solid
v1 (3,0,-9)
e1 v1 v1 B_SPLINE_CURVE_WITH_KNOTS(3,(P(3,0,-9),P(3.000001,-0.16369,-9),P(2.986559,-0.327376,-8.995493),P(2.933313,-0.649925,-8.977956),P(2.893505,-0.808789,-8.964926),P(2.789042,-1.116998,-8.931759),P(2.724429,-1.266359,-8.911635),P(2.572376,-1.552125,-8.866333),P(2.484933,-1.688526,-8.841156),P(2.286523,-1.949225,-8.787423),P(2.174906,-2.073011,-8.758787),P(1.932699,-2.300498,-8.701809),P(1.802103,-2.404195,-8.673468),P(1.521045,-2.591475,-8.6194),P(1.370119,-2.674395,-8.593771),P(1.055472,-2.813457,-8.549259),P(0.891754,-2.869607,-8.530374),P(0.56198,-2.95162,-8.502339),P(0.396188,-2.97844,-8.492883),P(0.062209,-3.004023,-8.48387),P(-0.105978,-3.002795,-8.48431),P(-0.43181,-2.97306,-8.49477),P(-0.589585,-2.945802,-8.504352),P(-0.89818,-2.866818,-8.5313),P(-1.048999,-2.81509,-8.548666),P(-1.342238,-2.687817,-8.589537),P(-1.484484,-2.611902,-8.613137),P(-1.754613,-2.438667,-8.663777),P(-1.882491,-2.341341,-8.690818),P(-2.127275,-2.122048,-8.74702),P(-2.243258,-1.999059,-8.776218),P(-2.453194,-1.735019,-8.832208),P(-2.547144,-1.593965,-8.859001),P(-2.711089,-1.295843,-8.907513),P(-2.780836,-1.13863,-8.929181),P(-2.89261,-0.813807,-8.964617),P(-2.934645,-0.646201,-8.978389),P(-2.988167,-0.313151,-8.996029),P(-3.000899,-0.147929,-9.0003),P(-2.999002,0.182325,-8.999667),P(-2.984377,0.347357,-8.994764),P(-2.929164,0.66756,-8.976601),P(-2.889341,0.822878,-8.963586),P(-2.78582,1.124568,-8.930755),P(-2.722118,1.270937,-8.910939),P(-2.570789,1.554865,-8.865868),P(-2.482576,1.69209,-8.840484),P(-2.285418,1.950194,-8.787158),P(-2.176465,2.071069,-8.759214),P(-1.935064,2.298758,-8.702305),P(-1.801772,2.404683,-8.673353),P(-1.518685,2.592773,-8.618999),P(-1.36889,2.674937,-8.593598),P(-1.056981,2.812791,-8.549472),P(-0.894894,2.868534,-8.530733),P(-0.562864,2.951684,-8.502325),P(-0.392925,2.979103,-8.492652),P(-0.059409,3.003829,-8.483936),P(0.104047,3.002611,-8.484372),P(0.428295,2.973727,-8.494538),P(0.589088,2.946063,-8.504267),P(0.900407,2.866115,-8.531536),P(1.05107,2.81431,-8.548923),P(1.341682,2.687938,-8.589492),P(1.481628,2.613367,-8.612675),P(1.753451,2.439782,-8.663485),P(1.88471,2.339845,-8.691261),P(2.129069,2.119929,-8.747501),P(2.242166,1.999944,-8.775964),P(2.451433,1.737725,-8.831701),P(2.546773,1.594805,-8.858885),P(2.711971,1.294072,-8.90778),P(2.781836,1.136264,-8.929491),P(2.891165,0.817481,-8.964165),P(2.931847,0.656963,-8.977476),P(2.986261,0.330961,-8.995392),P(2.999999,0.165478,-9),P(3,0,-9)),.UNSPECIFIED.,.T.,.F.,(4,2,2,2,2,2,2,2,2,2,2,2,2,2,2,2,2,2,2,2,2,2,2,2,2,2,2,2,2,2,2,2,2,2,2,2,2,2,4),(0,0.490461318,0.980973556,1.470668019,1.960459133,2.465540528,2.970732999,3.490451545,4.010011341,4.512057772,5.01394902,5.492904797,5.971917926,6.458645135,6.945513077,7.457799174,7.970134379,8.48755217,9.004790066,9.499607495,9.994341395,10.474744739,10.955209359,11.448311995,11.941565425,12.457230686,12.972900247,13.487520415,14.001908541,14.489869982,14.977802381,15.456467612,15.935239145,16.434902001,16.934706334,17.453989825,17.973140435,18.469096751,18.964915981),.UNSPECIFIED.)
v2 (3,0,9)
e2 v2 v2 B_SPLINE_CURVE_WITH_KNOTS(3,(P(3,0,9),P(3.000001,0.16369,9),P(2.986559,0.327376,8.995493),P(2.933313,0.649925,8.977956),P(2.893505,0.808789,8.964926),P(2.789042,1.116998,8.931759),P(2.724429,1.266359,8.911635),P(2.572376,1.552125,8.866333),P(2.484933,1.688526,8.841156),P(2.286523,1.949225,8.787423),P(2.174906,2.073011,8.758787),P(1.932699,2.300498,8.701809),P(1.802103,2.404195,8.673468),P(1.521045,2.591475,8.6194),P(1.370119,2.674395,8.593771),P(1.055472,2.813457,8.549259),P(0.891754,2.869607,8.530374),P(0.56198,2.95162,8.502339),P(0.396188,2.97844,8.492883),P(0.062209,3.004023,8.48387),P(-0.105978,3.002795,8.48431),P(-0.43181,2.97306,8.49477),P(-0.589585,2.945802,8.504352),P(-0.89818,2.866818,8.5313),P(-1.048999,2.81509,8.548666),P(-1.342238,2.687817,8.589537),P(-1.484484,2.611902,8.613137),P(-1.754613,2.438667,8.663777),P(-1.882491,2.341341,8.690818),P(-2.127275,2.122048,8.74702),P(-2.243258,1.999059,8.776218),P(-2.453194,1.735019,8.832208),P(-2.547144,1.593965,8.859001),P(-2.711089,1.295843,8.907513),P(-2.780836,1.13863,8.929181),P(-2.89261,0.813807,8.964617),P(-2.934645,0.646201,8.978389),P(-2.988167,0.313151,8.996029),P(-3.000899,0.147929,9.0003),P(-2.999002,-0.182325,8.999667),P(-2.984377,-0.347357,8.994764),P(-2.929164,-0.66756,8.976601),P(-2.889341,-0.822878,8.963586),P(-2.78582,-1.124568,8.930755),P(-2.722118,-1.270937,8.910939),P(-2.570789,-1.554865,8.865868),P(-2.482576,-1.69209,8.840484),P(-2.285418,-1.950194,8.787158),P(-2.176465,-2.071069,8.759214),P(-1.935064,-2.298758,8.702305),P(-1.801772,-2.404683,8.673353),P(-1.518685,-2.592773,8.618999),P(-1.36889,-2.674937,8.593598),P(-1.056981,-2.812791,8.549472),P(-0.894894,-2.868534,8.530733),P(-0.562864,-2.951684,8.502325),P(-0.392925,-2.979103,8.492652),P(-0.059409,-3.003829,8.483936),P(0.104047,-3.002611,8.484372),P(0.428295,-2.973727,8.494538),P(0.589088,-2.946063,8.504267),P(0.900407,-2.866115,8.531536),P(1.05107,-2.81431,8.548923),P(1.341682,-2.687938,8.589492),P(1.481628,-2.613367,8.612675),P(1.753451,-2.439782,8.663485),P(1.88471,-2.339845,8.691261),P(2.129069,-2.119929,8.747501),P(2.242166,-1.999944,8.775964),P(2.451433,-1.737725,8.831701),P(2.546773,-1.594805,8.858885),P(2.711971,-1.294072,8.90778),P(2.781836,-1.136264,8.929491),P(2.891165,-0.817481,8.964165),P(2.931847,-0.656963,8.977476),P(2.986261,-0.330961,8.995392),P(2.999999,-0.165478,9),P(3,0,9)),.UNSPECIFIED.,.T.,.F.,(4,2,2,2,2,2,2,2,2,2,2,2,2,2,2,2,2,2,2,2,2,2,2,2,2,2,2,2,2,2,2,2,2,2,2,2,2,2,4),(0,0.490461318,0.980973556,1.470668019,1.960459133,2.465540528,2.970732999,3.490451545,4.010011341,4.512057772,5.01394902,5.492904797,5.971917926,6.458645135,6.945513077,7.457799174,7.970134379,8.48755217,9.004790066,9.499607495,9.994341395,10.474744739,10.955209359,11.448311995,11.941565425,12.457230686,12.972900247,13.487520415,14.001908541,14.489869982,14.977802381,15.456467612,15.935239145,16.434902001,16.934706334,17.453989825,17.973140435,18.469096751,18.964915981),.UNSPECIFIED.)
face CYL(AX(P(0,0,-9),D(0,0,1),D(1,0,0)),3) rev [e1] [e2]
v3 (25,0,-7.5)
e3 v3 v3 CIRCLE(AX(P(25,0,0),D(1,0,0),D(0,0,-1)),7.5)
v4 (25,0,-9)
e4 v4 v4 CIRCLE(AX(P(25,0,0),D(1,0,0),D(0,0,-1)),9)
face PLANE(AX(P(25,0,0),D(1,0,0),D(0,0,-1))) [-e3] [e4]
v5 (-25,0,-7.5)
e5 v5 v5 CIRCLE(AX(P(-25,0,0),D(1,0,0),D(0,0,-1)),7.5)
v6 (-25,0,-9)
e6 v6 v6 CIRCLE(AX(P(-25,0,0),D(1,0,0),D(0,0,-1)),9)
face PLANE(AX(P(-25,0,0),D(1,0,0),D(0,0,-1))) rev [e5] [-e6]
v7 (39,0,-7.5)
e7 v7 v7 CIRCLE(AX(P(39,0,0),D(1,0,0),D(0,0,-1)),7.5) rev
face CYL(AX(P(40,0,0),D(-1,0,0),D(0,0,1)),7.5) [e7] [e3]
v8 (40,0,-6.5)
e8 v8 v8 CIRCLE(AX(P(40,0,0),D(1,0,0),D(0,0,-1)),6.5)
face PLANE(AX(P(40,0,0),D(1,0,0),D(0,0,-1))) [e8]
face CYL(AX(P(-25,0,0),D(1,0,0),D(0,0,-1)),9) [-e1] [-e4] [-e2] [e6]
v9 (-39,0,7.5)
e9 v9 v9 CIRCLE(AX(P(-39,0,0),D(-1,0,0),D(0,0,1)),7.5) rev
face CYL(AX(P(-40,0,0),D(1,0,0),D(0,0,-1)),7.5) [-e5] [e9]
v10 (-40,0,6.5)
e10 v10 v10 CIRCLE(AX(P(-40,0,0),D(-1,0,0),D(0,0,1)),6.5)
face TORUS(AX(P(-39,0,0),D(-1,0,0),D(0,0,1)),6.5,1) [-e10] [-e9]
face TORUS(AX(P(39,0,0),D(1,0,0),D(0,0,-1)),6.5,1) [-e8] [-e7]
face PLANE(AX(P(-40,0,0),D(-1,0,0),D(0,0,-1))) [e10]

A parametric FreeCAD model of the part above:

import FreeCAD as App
import Part
import Sketcher
from FreeCAD import Vector


def edges_at(feature, points):
    """Names of the edges that pass closest to the given points."""
    edges = feature.Shape.Edges
    near = lambda p: min(range(len(edges)), key=lambda i: edges[i].distToShape(Part.Vertex(*p))[0])
    return sorted({f"Edge{near(p) + 1}" for p in points})

doc = App.newDocument("Part")
body = doc.addObject("PartDesign::Body", "Body")

# Sketch on YZ plane
sketch1 = doc.addObject("Sketcher::SketchObject", "Sketch")
body.addObject(sketch1)
sketch1.AttachmentSupport = (doc.YZ_Plane, [""])
sketch1.MapMode = "FlatFace"
sketch1.addGeometry(Part.Circle(Vector(0, 0, 0), Vector(0, 0, 1), 9), False)
sketch1.addConstraint(Sketcher.Constraint("Coincident", 0, 3, -1, 1))
sketch1.addConstraint(Sketcher.Constraint("Diameter", 0, 18.0))
pad1 = doc.addObject("PartDesign::Pad", "Pad")
body.addObject(pad1)
pad1.Profile = sketch1
pad1.Type = "TwoLengths"
pad1.Length = 25
pad1.Length2 = 25

# Sketch on YZ plane
sketch2 = doc.addObject("Sketcher::SketchObject", "Sketch001")
body.addObject(sketch2)
sketch2.AttachmentSupport = (doc.YZ_Plane, [""])
sketch2.MapMode = "FlatFace"
sketch2.AttachmentOffset = App.Placement(Vector(0, 0, 25), App.Rotation())
sketch2.addGeometry(Part.Circle(Vector(0, 0, 0), Vector(0, 0, 1), 7.5), False)
sketch2.addConstraint(Sketcher.Constraint("Coincident", 0, 3, -1, 1))
sketch2.addConstraint(Sketcher.Constraint("Diameter", 0, 15.0))
pad2 = doc.addObject("PartDesign::Pad", "Pad001")
body.addObject(pad2)
pad2.Profile = sketch2
pad2.Length = 15
doc.recompute()

mirrored = doc.addObject("PartDesign::Mirrored", "Mirrored")
body.addObject(mirrored)
mirrored.Originals = [pad2]
mirrored.MirrorPlane = (doc.YZ_Plane, [""])
body.Tip = mirrored
doc.recompute()

fillet = doc.addObject("PartDesign::Fillet", "Fillet")
body.addObject(fillet)
fillet.Base = (mirrored, edges_at(mirrored, [(-40, 0, 7.5), (40, 0, 7.5)]))
fillet.Radius = 1

# Sketch on XY plane
sketch3 = doc.addObject("Sketcher::SketchObject", "Sketch002")
body.addObject(sketch3)
sketch3.AttachmentSupport = (doc.XY_Plane, [""])
sketch3.MapMode = "FlatFace"
sketch3.addGeometry(Part.Circle(Vector(0, 0, 0), Vector(0, 0, 1), 3), False)
sketch3.addConstraint(Sketcher.Constraint("Coincident", 0, 3, -1, 1))
sketch3.addConstraint(Sketcher.Constraint("Diameter", 0, 6.0))
pocket1 = doc.addObject("PartDesign::Pocket", "Pocket")
body.addObject(pocket1)
pocket1.Profile = sketch3
pocket1.Type = "ThroughAll"
pocket1.Midplane = True

doc.recompute()
